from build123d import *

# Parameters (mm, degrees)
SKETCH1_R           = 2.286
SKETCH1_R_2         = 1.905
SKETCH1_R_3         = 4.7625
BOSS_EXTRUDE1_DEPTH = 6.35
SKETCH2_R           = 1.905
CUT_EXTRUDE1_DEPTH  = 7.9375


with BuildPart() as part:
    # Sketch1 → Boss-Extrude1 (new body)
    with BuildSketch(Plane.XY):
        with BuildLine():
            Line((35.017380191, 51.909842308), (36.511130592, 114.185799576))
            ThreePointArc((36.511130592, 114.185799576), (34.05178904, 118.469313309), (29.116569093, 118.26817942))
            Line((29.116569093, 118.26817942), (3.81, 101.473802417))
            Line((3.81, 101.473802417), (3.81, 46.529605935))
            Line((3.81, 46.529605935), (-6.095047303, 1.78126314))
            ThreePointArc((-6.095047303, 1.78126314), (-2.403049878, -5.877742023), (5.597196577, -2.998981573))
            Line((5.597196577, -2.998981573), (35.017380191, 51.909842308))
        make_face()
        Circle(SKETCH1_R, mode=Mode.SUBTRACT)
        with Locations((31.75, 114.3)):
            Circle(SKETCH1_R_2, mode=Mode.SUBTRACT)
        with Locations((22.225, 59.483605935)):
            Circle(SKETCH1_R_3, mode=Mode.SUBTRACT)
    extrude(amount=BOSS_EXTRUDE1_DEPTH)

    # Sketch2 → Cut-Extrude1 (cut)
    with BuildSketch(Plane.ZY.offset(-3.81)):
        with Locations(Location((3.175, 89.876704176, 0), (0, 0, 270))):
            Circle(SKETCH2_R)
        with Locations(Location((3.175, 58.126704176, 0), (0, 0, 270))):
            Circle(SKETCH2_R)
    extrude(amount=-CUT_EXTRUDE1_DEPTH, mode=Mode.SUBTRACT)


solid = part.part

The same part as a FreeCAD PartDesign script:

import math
import FreeCAD as App
import Part
import Sketcher
from FreeCAD import Vector
Q = App.Units.Quantity

doc = App.newDocument("Part")
params = doc.addObject("Spreadsheet::Sheet", "Params")
for row, (alias, value) in enumerate([
    ("sketch1_diameter", "0.18 in"),
    ("sketch1_diameter2", "0.15 in"),
    ("sketch1_radius", "0.25 in"),
    ("sketch1_diameter3", "0.375 in"),
    ("pad1_length", "0.25 in"),
    ("sketch2_diameter", "0.15 in"),
    ("pocket1_length", "0.3125 in"),
], start=1):
    params.set(f"A{row}", alias)
    params.set(f"B{row}", "=" + value)
    params.setAlias(f"B{row}", alias)

body = doc.addObject("PartDesign::Body", "Body")

# Sketch on XY plane
sketch1 = doc.addObject("Sketcher::SketchObject", "Sketch")
body.addObject(sketch1)
sketch1.AttachmentSupport = (doc.XY_Plane, [""])
sketch1.MapMode = "FlatFace"
sketch1.addGeometry(Part.LineSegment(Vector(35, 51.9, 0), Vector(36.5, 114.2, 0)), False)
sketch1.addGeometry(Part.ArcOfCircle(Part.Circle(Vector(31.8, 114.3, 0), Vector(0, 0, 1), 4.8), math.radians(-1), math.radians(124)), False)
sketch1.addGeometry(Part.LineSegment(Vector(29.1, 118.3, 0), Vector(3.8, 101.5, 0)), False)
sketch1.addGeometry(Part.LineSegment(Vector(3.8, 101.5, 0), Vector(3.8, 46.5, 0)), False)
sketch1.addGeometry(Part.LineSegment(Vector(3.8, 46.5, 0), Vector(-6.1, 1.8, 0)), False)
sketch1.addGeometry(Part.ArcOfCircle(Part.Circle(Vector(0, 0, 0), Vector(0, 0, 1), 6.3), math.radians(164), math.radians(332)), False)
sketch1.addGeometry(Part.LineSegment(Vector(5.6, -3, 0), Vector(35, 51.9, 0)), False)
sketch1.addGeometry(Part.Circle(Vector(0, 0, 0), Vector(0, 0, 1), 2.3), False)
sketch1.addGeometry(Part.Circle(Vector(22.2, 59.5, 0), Vector(0, 0, 1), 4.8), False)
sketch1.addGeometry(Part.Circle(Vector(31.8, 114.3, 0), Vector(0, 0, 1), 1.9), False)
sketch1.addConstraint(Sketcher.Constraint("Tangent", 0, 2, 1, 1))
sketch1.addConstraint(Sketcher.Constraint("Tangent", 1, 2, 2, 1))
sketch1.addConstraint(Sketcher.Constraint("Coincident", 2, 2, 3, 1))
sketch1.addConstraint(Sketcher.Constraint("Coincident", 3, 2, 4, 1))
sketch1.addConstraint(Sketcher.Constraint("Coincident", 4, 2, 5, 1))
sketch1.addConstraint(Sketcher.Constraint("Tangent", 5, 2, 6, 1))
sketch1.addConstraint(Sketcher.Constraint("Coincident", 6, 2, 0, 1))
sketch1.addConstraint(Sketcher.Constraint("Vertical", 3))
sketch1.addConstraint(Sketcher.Constraint("Coincident", 5, 3, -1, 1))
sketch1.addConstraint(Sketcher.Constraint("Coincident", 7, 3, -1, 1))
sketch1.addConstraint(Sketcher.Constraint("Coincident", 9, 3, 1, 3))
sketch1.addConstraint(Sketcher.Constraint("Equal", 1, 8))
sketch1.addConstraint(Sketcher.Constraint("Equal", 0, 6))
sketch1.addConstraint(Sketcher.Constraint("Diameter", 7, Q("0.18 in")))
sketch1.addConstraint(Sketcher.Constraint("Diameter", 9, Q("0.15 in")))
sketch1.addConstraint(Sketcher.Constraint("Radius", 5, Q("0.25 in")))
sketch1.addConstraint(Sketcher.Constraint("Diameter", 8, Q("0.375 in")))
sketch1.addConstraint(Sketcher.Constraint("DistanceY", -1, 1, 1, 3, Q("4.5 in")))
sketch1.addConstraint(Sketcher.Constraint("DistanceX", 2, 2, 1, 3, Q("1.1 in")))
sketch1.addConstraint(Sketcher.Constraint("DistanceX", -1, 1, 1, 3, Q("1.25 in")))
sketch1.addConstraint(Sketcher.Constraint("DistanceY", 3, 2, 8, 3, Q("0.51 in")))
sketch1.addConstraint(Sketcher.Constraint("DistanceX", -1, 1, 8, 3, Q("0.875 in")))
sketch1.addConstraint(Sketcher.Constraint("DistanceY", -1, 1, 0, 2, Q("114.1858 mm")))
sketch1.addConstraint(Sketcher.Constraint("Distance", 2, Q("30.372249 mm")))
sketch1.addConstraint(Sketcher.Constraint("DistanceY", 3, 2, 3, 1, Q("54.944196 mm")))
sketch1.addConstraint(Sketcher.Constraint("DistanceY", 4, 2, 2, 2, Q("99.692539 mm")))
sketch1.setExpression("Constraints[13]", "Params.sketch1_diameter")
sketch1.setExpression("Constraints[14]", "Params.sketch1_diameter2")
sketch1.setExpression("Constraints[15]", "Params.sketch1_radius")
sketch1.setExpression("Constraints[16]", "Params.sketch1_diameter3")
pad1 = doc.addObject("PartDesign::Pad", "Pad")
body.addObject(pad1)
pad1.Profile = sketch1
pad1.setExpression("Length", "Params.pad1_length")

# Sketch on YZ plane
sketch2 = doc.addObject("Sketcher::SketchObject", "Sketch001")
body.addObject(sketch2)
sketch2.AttachmentSupport = (doc.YZ_Plane, [""])
sketch2.MapMode = "FlatFace"
sketch2.AttachmentOffset = App.Placement(Vector(0, 0, 0.15 * 25.4), App.Rotation())
sketch2.addGeometry(Part.Circle(Vector(89.9, 3.2, 0), Vector(0, 0, 1), 1.9), False)
sketch2.addGeometry(Part.Circle(Vector(58.1, 3.2, 0), Vector(0, 0, 1), 1.9), False)
sketch2.addConstraint(Sketcher.Constraint("Equal", 0, 1))
sketch2.addConstraint(Sketcher.Constraint("Horizontal", 0, 3, 1, 3))
sketch2.addConstraint(Sketcher.Constraint("Diameter", 0, Q("0.15 in")))
sketch2.addConstraint(Sketcher.Constraint("DistanceX", 1, 3, 0, 3, Q("1.25 in")))
sketch2.addConstraint(Sketcher.Constraint("DistanceY", -1, 1, 0, 3, Q("0.125 in")))
sketch2.addConstraint(Sketcher.Constraint("DistanceX", -1, 1, 0, 3, Q("89.876704 mm")))
sketch2.setExpression("Constraints[2]", "Params.sketch2_diameter")
pocket1 = doc.addObject("PartDesign::Pocket", "Pocket")
body.addObject(pocket1)
pocket1.Profile = sketch2
pocket1.setExpression("Length", "Params.pocket1_length")
pocket1.Reversed = True

doc.recompute()
